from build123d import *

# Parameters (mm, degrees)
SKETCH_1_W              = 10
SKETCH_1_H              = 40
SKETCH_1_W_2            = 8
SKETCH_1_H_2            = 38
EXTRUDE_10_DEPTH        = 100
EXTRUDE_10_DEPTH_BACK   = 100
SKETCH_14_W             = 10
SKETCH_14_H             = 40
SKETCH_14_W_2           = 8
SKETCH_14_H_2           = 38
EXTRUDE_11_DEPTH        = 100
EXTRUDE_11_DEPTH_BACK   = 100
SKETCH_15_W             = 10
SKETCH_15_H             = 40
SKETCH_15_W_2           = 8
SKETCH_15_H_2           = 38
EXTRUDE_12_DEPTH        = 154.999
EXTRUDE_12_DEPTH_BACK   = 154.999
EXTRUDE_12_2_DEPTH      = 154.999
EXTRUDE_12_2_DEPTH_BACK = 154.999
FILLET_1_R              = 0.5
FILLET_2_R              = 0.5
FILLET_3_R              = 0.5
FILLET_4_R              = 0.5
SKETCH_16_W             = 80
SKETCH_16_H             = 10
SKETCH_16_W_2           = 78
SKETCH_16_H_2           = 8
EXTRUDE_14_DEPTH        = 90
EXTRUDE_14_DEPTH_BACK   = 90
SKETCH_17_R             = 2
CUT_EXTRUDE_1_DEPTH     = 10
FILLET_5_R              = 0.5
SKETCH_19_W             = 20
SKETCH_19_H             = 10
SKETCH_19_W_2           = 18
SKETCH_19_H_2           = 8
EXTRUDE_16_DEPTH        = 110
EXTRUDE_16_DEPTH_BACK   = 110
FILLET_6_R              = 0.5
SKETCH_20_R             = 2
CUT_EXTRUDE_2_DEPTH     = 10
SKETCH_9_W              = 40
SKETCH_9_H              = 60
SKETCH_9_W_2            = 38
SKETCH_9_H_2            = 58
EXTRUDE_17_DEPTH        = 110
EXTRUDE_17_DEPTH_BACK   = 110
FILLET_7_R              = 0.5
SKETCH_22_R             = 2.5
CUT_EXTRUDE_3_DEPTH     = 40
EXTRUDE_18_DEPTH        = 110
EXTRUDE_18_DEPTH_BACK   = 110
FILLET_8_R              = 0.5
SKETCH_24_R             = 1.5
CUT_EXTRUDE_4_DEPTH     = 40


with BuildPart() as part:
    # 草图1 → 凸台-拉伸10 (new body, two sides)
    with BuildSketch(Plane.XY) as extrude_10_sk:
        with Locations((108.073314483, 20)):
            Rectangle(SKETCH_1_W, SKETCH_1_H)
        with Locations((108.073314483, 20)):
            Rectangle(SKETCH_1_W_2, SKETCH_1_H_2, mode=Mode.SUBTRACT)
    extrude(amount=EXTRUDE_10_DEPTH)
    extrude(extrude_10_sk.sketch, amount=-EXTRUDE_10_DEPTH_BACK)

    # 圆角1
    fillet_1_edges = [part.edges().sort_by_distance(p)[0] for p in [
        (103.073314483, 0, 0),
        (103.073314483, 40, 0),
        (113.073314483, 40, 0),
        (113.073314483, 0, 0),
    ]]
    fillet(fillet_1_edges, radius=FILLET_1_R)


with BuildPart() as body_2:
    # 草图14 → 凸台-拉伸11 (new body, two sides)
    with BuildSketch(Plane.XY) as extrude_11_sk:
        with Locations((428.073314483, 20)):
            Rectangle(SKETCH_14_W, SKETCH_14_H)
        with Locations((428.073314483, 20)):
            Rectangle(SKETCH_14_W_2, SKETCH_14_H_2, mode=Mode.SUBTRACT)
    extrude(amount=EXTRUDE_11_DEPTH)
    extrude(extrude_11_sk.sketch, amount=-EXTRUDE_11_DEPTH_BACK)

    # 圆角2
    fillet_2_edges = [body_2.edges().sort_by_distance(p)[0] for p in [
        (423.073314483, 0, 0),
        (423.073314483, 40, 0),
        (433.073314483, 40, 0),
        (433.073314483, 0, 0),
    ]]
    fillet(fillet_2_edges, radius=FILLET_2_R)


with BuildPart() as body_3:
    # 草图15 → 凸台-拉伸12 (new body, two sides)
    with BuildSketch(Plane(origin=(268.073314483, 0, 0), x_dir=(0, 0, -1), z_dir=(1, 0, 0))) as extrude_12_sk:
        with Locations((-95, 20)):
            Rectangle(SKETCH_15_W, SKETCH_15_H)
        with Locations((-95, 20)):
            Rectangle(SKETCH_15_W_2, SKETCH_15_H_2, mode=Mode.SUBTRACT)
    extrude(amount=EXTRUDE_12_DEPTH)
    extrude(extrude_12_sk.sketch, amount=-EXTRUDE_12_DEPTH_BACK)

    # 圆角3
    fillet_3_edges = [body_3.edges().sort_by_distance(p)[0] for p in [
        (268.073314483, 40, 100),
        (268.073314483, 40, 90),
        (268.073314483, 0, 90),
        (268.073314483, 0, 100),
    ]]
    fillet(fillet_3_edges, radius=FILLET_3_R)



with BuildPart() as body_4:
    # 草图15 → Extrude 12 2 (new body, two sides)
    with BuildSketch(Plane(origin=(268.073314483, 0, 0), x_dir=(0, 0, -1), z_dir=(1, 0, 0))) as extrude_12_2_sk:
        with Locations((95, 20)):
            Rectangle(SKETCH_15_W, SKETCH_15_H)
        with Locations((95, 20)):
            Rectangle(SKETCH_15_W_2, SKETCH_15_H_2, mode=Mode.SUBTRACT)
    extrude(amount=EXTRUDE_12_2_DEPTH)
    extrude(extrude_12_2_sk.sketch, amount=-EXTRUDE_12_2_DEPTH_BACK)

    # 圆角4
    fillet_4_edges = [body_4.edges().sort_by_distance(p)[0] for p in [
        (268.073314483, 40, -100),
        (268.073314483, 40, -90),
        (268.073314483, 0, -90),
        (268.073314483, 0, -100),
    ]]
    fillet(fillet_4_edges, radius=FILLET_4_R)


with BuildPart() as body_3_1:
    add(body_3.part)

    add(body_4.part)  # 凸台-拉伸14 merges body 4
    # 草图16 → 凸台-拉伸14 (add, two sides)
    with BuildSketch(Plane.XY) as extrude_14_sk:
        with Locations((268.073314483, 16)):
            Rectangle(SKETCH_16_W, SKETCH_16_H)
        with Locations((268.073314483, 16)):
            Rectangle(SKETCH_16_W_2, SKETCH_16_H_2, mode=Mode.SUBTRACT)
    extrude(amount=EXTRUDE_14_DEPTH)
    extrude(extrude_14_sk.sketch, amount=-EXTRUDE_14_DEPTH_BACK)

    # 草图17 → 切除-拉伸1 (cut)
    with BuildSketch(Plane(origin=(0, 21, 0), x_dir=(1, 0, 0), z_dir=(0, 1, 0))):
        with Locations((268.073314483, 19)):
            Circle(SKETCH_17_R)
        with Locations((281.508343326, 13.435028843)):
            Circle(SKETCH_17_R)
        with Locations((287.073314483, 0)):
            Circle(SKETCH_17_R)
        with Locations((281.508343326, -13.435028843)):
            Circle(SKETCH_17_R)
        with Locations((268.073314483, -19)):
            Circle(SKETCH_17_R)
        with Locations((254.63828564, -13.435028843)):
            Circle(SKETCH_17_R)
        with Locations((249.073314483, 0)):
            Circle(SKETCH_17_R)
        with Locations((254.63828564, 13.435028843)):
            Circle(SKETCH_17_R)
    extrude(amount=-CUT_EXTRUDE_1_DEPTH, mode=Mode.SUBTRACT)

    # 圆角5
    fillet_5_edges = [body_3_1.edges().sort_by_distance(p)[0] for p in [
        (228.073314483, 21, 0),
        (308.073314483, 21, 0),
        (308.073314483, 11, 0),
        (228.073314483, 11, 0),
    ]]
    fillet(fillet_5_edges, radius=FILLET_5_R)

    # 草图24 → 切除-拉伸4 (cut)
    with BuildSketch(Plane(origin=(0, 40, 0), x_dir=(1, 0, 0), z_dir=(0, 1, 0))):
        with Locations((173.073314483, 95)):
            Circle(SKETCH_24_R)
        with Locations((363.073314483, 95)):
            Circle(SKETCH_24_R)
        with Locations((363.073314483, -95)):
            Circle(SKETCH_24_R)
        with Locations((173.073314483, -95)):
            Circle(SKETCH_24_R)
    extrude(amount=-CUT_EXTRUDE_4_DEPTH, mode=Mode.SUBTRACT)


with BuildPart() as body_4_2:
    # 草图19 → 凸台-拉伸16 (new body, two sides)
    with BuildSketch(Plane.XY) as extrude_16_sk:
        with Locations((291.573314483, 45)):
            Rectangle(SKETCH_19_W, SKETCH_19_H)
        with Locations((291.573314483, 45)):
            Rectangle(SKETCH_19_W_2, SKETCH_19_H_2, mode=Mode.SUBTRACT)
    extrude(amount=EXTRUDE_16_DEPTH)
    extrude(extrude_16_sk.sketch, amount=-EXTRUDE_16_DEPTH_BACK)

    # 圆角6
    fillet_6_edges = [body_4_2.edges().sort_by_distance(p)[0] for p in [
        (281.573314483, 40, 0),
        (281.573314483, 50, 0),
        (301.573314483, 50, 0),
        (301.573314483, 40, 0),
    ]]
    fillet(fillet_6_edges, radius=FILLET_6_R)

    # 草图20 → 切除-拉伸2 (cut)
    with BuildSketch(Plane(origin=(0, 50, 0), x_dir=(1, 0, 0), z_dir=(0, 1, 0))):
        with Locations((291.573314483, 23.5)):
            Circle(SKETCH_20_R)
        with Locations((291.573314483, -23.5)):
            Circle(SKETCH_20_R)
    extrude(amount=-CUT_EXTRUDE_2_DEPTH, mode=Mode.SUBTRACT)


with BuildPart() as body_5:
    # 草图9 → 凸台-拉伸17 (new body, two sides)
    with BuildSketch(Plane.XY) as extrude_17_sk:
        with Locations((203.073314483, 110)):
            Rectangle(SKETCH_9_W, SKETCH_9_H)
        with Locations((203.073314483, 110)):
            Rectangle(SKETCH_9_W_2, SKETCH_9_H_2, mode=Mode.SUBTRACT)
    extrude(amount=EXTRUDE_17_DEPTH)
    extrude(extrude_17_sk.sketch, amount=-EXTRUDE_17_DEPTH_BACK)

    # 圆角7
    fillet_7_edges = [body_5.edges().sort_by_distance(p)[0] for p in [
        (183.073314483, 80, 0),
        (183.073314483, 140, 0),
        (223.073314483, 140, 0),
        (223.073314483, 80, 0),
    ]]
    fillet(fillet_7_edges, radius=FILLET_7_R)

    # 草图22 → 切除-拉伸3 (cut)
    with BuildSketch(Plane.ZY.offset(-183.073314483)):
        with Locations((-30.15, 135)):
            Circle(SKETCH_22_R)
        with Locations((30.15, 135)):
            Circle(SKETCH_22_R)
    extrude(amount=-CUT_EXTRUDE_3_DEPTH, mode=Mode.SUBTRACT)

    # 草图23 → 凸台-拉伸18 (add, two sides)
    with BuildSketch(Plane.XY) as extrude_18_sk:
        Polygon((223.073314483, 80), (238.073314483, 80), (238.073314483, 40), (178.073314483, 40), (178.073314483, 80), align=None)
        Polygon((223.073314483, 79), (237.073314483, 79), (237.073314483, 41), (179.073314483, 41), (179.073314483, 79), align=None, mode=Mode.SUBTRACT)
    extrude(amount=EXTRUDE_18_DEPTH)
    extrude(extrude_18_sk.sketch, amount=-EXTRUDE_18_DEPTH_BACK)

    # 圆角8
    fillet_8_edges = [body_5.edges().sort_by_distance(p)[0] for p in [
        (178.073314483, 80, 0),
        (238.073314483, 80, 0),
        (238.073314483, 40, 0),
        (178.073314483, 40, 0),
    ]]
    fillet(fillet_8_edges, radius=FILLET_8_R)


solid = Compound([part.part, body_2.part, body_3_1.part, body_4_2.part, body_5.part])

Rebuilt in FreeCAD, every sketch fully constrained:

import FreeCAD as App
import Part
import Sketcher

V = App.Vector


def edges_at(feature, points):
    """Names of the edges that pass closest to the given points."""
    edges = feature.Shape.Edges
    near = lambda p: min(range(len(edges)), key=lambda i: edges[i].distToShape(Part.Vertex(*p))[0])
    return sorted({f"Edge{near(p) + 1}" for p in points})

doc = App.newDocument("Part")
params = doc.addObject("Spreadsheet::Sheet", "Params")
for row, (alias, value) in enumerate([
    ("sketch1_width", "10 mm"),
    ("sketch1_width2", "8 mm"),
    ("sketch1_height", "40 mm"),
    ("sketch1_height2", "38 mm"),
    ("pad1_length", "100 mm"),
    ("pad1_length2", "100 mm"),
    ("fillet_radius", "0.5 mm"),
    ("sketch2_width", "10 mm"),
    ("sketch2_width2", "8 mm"),
    ("sketch2_height", "40 mm"),
    ("sketch2_height2", "38 mm"),
    ("pad2_length", "100 mm"),
    ("pad2_length2", "100 mm"),
    ("fillet2_radius", "0.5 mm"),
    ("sketch3_width", "40 mm"),
    ("sketch3_width2", "38 mm"),
    ("sketch3_height", "10 mm"),
    ("sketch3_height2", "8 mm"),
    ("pad3_length", "154.999 mm"),
    ("pad3_length2", "154.999 mm"),
    ("fillet3_radius", "0.5 mm"),
    ("sketch4_width", "40 mm"),
    ("sketch4_width2", "38 mm"),
    ("sketch4_height", "10 mm"),
    ("sketch4_height2", "8 mm"),
    ("pad4_length", "154.999 mm"),
    ("pad4_length2", "154.999 mm"),
    ("fillet4_radius", "0.5 mm"),
    ("sketch5_width", "80 mm"),
    ("sketch5_width2", "78 mm"),
    ("sketch5_height", "10 mm"),
    ("sketch5_height2", "8 mm"),
    ("pad5_length", "90 mm"),
    ("pad5_length2", "90 mm"),
    ("sketch6_diameter", "4 mm"),
    ("pocket1_length", "10 mm"),
    ("fillet5_radius", "0.5 mm"),
    ("sketch7_diameter", "3 mm"),
    ("pocket2_length", "40 mm"),
    ("sketch8_width", "20 mm"),
    ("sketch8_width2", "18 mm"),
    ("sketch8_height", "10 mm"),
    ("sketch8_height2", "8 mm"),
    ("pad6_length", "110 mm"),
    ("pad6_length2", "110 mm"),
    ("fillet6_radius", "0.5 mm"),
    ("sketch9_diameter", "4 mm"),
    ("pocket3_length", "10 mm"),
    ("sketch10_width", "40 mm"),
    ("sketch10_width2", "38 mm"),
    ("sketch10_height", "60 mm"),
    ("sketch10_height2", "58 mm"),
    ("pad7_length", "110 mm"),
    ("pad7_length2", "110 mm"),
    ("fillet7_radius", "0.5 mm"),
    ("sketch11_diameter", "5 mm"),
    ("pocket4_length", "40 mm"),
    ("sketch12_width", "60 mm"),
    ("sketch12_width2", "58 mm"),
    ("sketch12_height", "40 mm"),
    ("sketch12_height2", "38 mm"),
    ("pad8_length", "110 mm"),
    ("pad8_length2", "110 mm"),
    ("fillet8_radius", "0.5 mm"),
], start=1):
    params.set(f"A{row}", alias)
    params.set(f"B{row}", "=" + value)
    params.setAlias(f"B{row}", alias)

body = doc.addObject("PartDesign::Body", "Body")

# Sketch on XY plane
sketch1 = body.newObject("Sketcher::SketchObject", "Sketch")
sketch1.AttachmentSupport = (doc.getObject("XY_Plane"), [""])
sketch1.MapMode = "FlatFace"
sketch1.addGeometry(Part.LineSegment(V(103.073314, 40, 0), V(103.073314, 0, 0)), False)
sketch1.addGeometry(Part.LineSegment(V(103.073314, 0, 0), V(113.073314, 0, 0)), False)
sketch1.addGeometry(Part.LineSegment(V(113.073314, 0, 0), V(113.073314, 40, 0)), False)
sketch1.addGeometry(Part.LineSegment(V(113.073314, 40, 0), V(103.073314, 40, 0)), False)
sketch1.addGeometry(Part.LineSegment(V(112.073314, 1, 0), V(104.073314, 1, 0)), False)
sketch1.addGeometry(Part.LineSegment(V(104.073314, 1, 0), V(104.073314, 39, 0)), False)
sketch1.addGeometry(Part.LineSegment(V(104.073314, 39, 0), V(112.073314, 39, 0)), False)
sketch1.addGeometry(Part.LineSegment(V(112.073314, 39, 0), V(112.073314, 1, 0)), False)
sketch1.addConstraint(Sketcher.Constraint("Coincident", 0, 2, 1, 1))
sketch1.addConstraint(Sketcher.Constraint("Coincident", 1, 2, 2, 1))
sketch1.addConstraint(Sketcher.Constraint("Coincident", 2, 2, 3, 1))
sketch1.addConstraint(Sketcher.Constraint("Coincident", 3, 2, 0, 1))
sketch1.addConstraint(Sketcher.Constraint("Coincident", 4, 2, 5, 1))
sketch1.addConstraint(Sketcher.Constraint("Coincident", 5, 2, 6, 1))
sketch1.addConstraint(Sketcher.Constraint("Coincident", 6, 2, 7, 1))
sketch1.addConstraint(Sketcher.Constraint("Coincident", 7, 2, 4, 1))
sketch1.addConstraint(Sketcher.Constraint("Vertical", 0))
sketch1.addConstraint(Sketcher.Constraint("Horizontal", 1))
sketch1.addConstraint(Sketcher.Constraint("Vertical", 2))
sketch1.addConstraint(Sketcher.Constraint("Horizontal", 3))
sketch1.addConstraint(Sketcher.Constraint("Horizontal", 4))
sketch1.addConstraint(Sketcher.Constraint("Vertical", 5))
sketch1.addConstraint(Sketcher.Constraint("Horizontal", 6))
sketch1.addConstraint(Sketcher.Constraint("Vertical", 7))
sketch1.addConstraint(Sketcher.Constraint("PointOnObject", 0, 2, -1))
sketch1.addConstraint(Sketcher.Constraint("DistanceX", 1, 1, 1, 2, 10.0))
sketch1.addConstraint(Sketcher.Constraint("DistanceX", 4, 2, 4, 1, 8.0))
sketch1.addConstraint(Sketcher.Constraint("DistanceY", 0, 2, 0, 1, 40.0))
sketch1.addConstraint(Sketcher.Constraint("DistanceY", 5, 1, 5, 2, 38.0))
sketch1.addConstraint(Sketcher.Constraint("DistanceY", -1, 1, 4, 2, 1.0))
sketch1.addConstraint(Sketcher.Constraint("DistanceX", 0, 2, 4, 2, 1.0))
sketch1.addConstraint(Sketcher.Constraint("DistanceX", -1, 1, 0, 2, 103.073314))
sketch1.setExpression("Constraints[17]", "Params.sketch1_width")
sketch1.setExpression("Constraints[18]", "Params.sketch1_width2")
sketch1.setExpression("Constraints[19]", "Params.sketch1_height")
sketch1.setExpression("Constraints[20]", "Params.sketch1_height2")
pad1 = body.newObject("PartDesign::Pad", "Pad")
pad1.Profile = sketch1
pad1.Type = "TwoLengths"
pad1.setExpression("Length", "Params.pad1_length")
pad1.setExpression("Length2", "Params.pad1_length2")
doc.recompute()

fillet = body.newObject("PartDesign::Fillet", "Fillet")
fillet.Base = (pad1, edges_at(pad1, [
    (103.073, 0, 0),
    (103.073, 40, 0),
    (113.073, 40, 0),
    (113.073, 0, 0),
]))
fillet.setExpression("Radius", "Params.fillet_radius")
body2 = doc.addObject("PartDesign::Body", "Body001")

# Sketch on XY plane
sketch2 = body2.newObject("Sketcher::SketchObject", "Sketch001")
sketch2.AttachmentSupport = (doc.getObject("XY_Plane001"), [""])
sketch2.MapMode = "FlatFace"
sketch2.addGeometry(Part.LineSegment(V(423.073314, 40, 0), V(423.073314, 0, 0)), False)
sketch2.addGeometry(Part.LineSegment(V(423.073314, 0, 0), V(433.073314, 0, 0)), False)
sketch2.addGeometry(Part.LineSegment(V(433.073314, 0, 0), V(433.073314, 40, 0)), False)
sketch2.addGeometry(Part.LineSegment(V(433.073314, 40, 0), V(423.073314, 40, 0)), False)
sketch2.addGeometry(Part.LineSegment(V(432.073314, 1, 0), V(424.073314, 1, 0)), False)
sketch2.addGeometry(Part.LineSegment(V(424.073314, 1, 0), V(424.073314, 39, 0)), False)
sketch2.addGeometry(Part.LineSegment(V(424.073314, 39, 0), V(432.073314, 39, 0)), False)
sketch2.addGeometry(Part.LineSegment(V(432.073314, 39, 0), V(432.073314, 1, 0)), False)
sketch2.addConstraint(Sketcher.Constraint("Coincident", 0, 2, 1, 1))
sketch2.addConstraint(Sketcher.Constraint("Coincident", 1, 2, 2, 1))
sketch2.addConstraint(Sketcher.Constraint("Coincident", 2, 2, 3, 1))
sketch2.addConstraint(Sketcher.Constraint("Coincident", 3, 2, 0, 1))
sketch2.addConstraint(Sketcher.Constraint("Coincident", 4, 2, 5, 1))
sketch2.addConstraint(Sketcher.Constraint("Coincident", 5, 2, 6, 1))
sketch2.addConstraint(Sketcher.Constraint("Coincident", 6, 2, 7, 1))
sketch2.addConstraint(Sketcher.Constraint("Coincident", 7, 2, 4, 1))
sketch2.addConstraint(Sketcher.Constraint("Vertical", 0))
sketch2.addConstraint(Sketcher.Constraint("Horizontal", 1))
sketch2.addConstraint(Sketcher.Constraint("Vertical", 2))
sketch2.addConstraint(Sketcher.Constraint("Horizontal", 3))
sketch2.addConstraint(Sketcher.Constraint("Horizontal", 4))
sketch2.addConstraint(Sketcher.Constraint("Vertical", 5))
sketch2.addConstraint(Sketcher.Constraint("Horizontal", 6))
sketch2.addConstraint(Sketcher.Constraint("Vertical", 7))
sketch2.addConstraint(Sketcher.Constraint("PointOnObject", 0, 2, -1))
sketch2.addConstraint(Sketcher.Constraint("DistanceX", 1, 1, 1, 2, 10.0))
sketch2.addConstraint(Sketcher.Constraint("DistanceX", 4, 2, 4, 1, 8.0))
sketch2.addConstraint(Sketcher.Constraint("DistanceY", 0, 2, 0, 1, 40.0))
sketch2.addConstraint(Sketcher.Constraint("DistanceY", 5, 1, 5, 2, 38.0))
sketch2.addConstraint(Sketcher.Constraint("DistanceY", -1, 1, 4, 2, 1.0))
sketch2.addConstraint(Sketcher.Constraint("DistanceX", 0, 2, 4, 2, 1.0))
sketch2.addConstraint(Sketcher.Constraint("DistanceX", -1, 1, 0, 2, 423.073314))
sketch2.setExpression("Constraints[17]", "Params.sketch2_width")
sketch2.setExpression("Constraints[18]", "Params.sketch2_width2")
sketch2.setExpression("Constraints[19]", "Params.sketch2_height")
sketch2.setExpression("Constraints[20]", "Params.sketch2_height2")
pad2 = body2.newObject("PartDesign::Pad", "Pad001")
pad2.Profile = sketch2
pad2.Type = "TwoLengths"
pad2.setExpression("Length", "Params.pad2_length")
pad2.setExpression("Length2", "Params.pad2_length2")
doc.recompute()

fillet2 = body2.newObject("PartDesign::Fillet", "Fillet001")
fillet2.Base = (pad2, edges_at(pad2, [
    (423.073, 0, 0),
    (423.073, 40, 0),
    (433.073, 40, 0),
    (433.073, 0, 0),
]))
fillet2.setExpression("Radius", "Params.fillet2_radius")
body3 = doc.addObject("PartDesign::Body", "Body002")

# Sketch on YZ plane
sketch3 = body3.newObject("Sketcher::SketchObject", "Sketch002")
sketch3.AttachmentSupport = (doc.getObject("YZ_Plane002"), [""])
sketch3.MapMode = "FlatFace"
sketch3.AttachmentOffset = App.Placement(V(0, 0, 268.073314), App.Rotation())
sketch3.addGeometry(Part.LineSegment(V(40, 100, 0), V(0, 100, 0)), False)
sketch3.addGeometry(Part.LineSegment(V(0, 100, 0), V(0, 90, 0)), False)
sketch3.addGeometry(Part.LineSegment(V(0, 90, 0), V(40, 90, 0)), False)
sketch3.addGeometry(Part.LineSegment(V(40, 90, 0), V(40, 100, 0)), False)
sketch3.addGeometry(Part.LineSegment(V(1, 91, 0), V(1, 99, 0)), False)
sketch3.addGeometry(Part.LineSegment(V(1, 99, 0), V(39, 99, 0)), False)
sketch3.addGeometry(Part.LineSegment(V(39, 99, 0), V(39, 91, 0)), False)
sketch3.addGeometry(Part.LineSegment(V(39, 91, 0), V(1, 91, 0)), False)
sketch3.addConstraint(Sketcher.Constraint("Coincident", 0, 2, 1, 1))
sketch3.addConstraint(Sketcher.Constraint("Coincident", 1, 2, 2, 1))
sketch3.addConstraint(Sketcher.Constraint("Coincident", 2, 2, 3, 1))
sketch3.addConstraint(Sketcher.Constraint("Coincident", 3, 2, 0, 1))
sketch3.addConstraint(Sketcher.Constraint("Coincident", 4, 2, 5, 1))
sketch3.addConstraint(Sketcher.Constraint("Coincident", 5, 2, 6, 1))
sketch3.addConstraint(Sketcher.Constraint("Coincident", 6, 2, 7, 1))
sketch3.addConstraint(Sketcher.Constraint("Coincident", 7, 2, 4, 1))
sketch3.addConstraint(Sketcher.Constraint("Horizontal", 0))
sketch3.addConstraint(Sketcher.Constraint("Vertical", 1))
sketch3.addConstraint(Sketcher.Constraint("Horizontal", 2))
sketch3.addConstraint(Sketcher.Constraint("Vertical", 3))
sketch3.addConstraint(Sketcher.Constraint("Vertical", 4))
sketch3.addConstraint(Sketcher.Constraint("Horizontal", 5))
sketch3.addConstraint(Sketcher.Constraint("Vertical", 6))
sketch3.addConstraint(Sketcher.Constraint("Horizontal", 7))
sketch3.addConstraint(Sketcher.Constraint("PointOnObject", 0, 2, -2))
sketch3.addConstraint(Sketcher.Constraint("DistanceX", 0, 2, 0, 1, 40.0))
sketch3.addConstraint(Sketcher.Constraint("DistanceX", 5, 1, 5, 2, 38.0))
sketch3.addConstraint(Sketcher.Constraint("DistanceY", 1, 2, 1, 1, 10.0))
sketch3.addConstraint(Sketcher.Constraint("DistanceY", 4, 1, 4, 2, 8.0))
sketch3.addConstraint(Sketcher.Constraint("DistanceY", -1, 1, 0, 2, 100.0))
sketch3.addConstraint(Sketcher.Constraint("DistanceX", -1, 1, 4, 2, 1.0))
sketch3.addConstraint(Sketcher.Constraint("DistanceY", -1, 1, 4, 2, 99.0))
sketch3.setExpression("Constraints[17]", "Params.sketch3_width")
sketch3.setExpression("Constraints[18]", "Params.sketch3_width2")
sketch3.setExpression("Constraints[19]", "Params.sketch3_height")
sketch3.setExpression("Constraints[20]", "Params.sketch3_height2")
pad3 = body3.newObject("PartDesign::Pad", "Pad002")
pad3.Profile = sketch3
pad3.Type = "TwoLengths"
pad3.setExpression("Length", "Params.pad3_length")
pad3.setExpression("Length2", "Params.pad3_length2")
doc.recompute()

fillet3 = body3.newObject("PartDesign::Fillet", "Fillet002")
fillet3.Base = (pad3, edges_at(pad3, [
    (268.073, 40, 100),
    (268.073, 40, 90),
    (268.073, 0, 90),
    (268.073, 0, 100),
]))
fillet3.setExpression("Radius", "Params.fillet3_radius")
body4 = doc.addObject("PartDesign::Body", "Body003")

# Sketch on YZ plane
sketch4 = body4.newObject("Sketcher::SketchObject", "Sketch003")
sketch4.AttachmentSupport = (doc.getObject("YZ_Plane003"), [""])
sketch4.MapMode = "FlatFace"
sketch4.AttachmentOffset = App.Placement(V(0, 0, 268.073314), App.Rotation())
sketch4.addGeometry(Part.LineSegment(V(40, -90, 0), V(0, -90, 0)), False)
sketch4.addGeometry(Part.LineSegment(V(0, -90, 0), V(0, -100, 0)), False)
sketch4.addGeometry(Part.LineSegment(V(0, -100, 0), V(40, -100, 0)), False)
sketch4.addGeometry(Part.LineSegment(V(40, -100, 0), V(40, -90, 0)), False)
sketch4.addGeometry(Part.LineSegment(V(1, -99, 0), V(1, -91, 0)), False)
sketch4.addGeometry(Part.LineSegment(V(1, -91, 0), V(39, -91, 0)), False)
sketch4.addGeometry(Part.LineSegment(V(39, -91, 0), V(39, -99, 0)), False)
sketch4.addGeometry(Part.LineSegment(V(39, -99, 0), V(1, -99, 0)), False)
sketch4.addConstraint(Sketcher.Constraint("Coincident", 0, 2, 1, 1))
sketch4.addConstraint(Sketcher.Constraint("Coincident", 1, 2, 2, 1))
sketch4.addConstraint(Sketcher.Constraint("Coincident", 2, 2, 3, 1))
sketch4.addConstraint(Sketcher.Constraint("Coincident", 3, 2, 0, 1))
sketch4.addConstraint(Sketcher.Constraint("Coincident", 4, 2, 5, 1))
sketch4.addConstraint(Sketcher.Constraint("Coincident", 5, 2, 6, 1))
sketch4.addConstraint(Sketcher.Constraint("Coincident", 6, 2, 7, 1))
sketch4.addConstraint(Sketcher.Constraint("Coincident", 7, 2, 4, 1))
sketch4.addConstraint(Sketcher.Constraint("Horizontal", 0))
sketch4.addConstraint(Sketcher.Constraint("Vertical", 1))
sketch4.addConstraint(Sketcher.Constraint("Horizontal", 2))
sketch4.addConstraint(Sketcher.Constraint("Vertical", 3))
sketch4.addConstraint(Sketcher.Constraint("Vertical", 4))
sketch4.addConstraint(Sketcher.Constraint("Horizontal", 5))
sketch4.addConstraint(Sketcher.Constraint("Vertical", 6))
sketch4.addConstraint(Sketcher.Constraint("Horizontal", 7))
sketch4.addConstraint(Sketcher.Constraint("PointOnObject", 0, 2, -2))
sketch4.addConstraint(Sketcher.Constraint("DistanceX", 0, 2, 0, 1, 40.0))
sketch4.addConstraint(Sketcher.Constraint("DistanceX", 5, 1, 5, 2, 38.0))
sketch4.addConstraint(Sketcher.Constraint("DistanceY", 1, 2, 1, 1, 10.0))
sketch4.addConstraint(Sketcher.Constraint("DistanceY", 4, 1, 4, 2, 8.0))
sketch4.addConstraint(Sketcher.Constraint("DistanceY", 0, 2, -1, 1, 90.0))
sketch4.addConstraint(Sketcher.Constraint("DistanceX", -1, 1, 4, 2, 1.0))
sketch4.addConstraint(Sketcher.Constraint("DistanceY", 4, 2, -1, 1, 91.0))
sketch4.setExpression("Constraints[17]", "Params.sketch4_width")
sketch4.setExpression("Constraints[18]", "Params.sketch4_width2")
sketch4.setExpression("Constraints[19]", "Params.sketch4_height")
sketch4.setExpression("Constraints[20]", "Params.sketch4_height2")
pad4 = body4.newObject("PartDesign::Pad", "Pad003")
pad4.Profile = sketch4
pad4.Type = "TwoLengths"
pad4.setExpression("Length", "Params.pad4_length")
pad4.setExpression("Length2", "Params.pad4_length2")
doc.recompute()

fillet4 = body4.newObject("PartDesign::Fillet", "Fillet003")
fillet4.Base = (pad4, edges_at(pad4, [
    (268.073, 40, -100),
    (268.073, 40, -90),
    (268.073, 0, -90),
    (268.073, 0, -100),
]))
fillet4.setExpression("Radius", "Params.fillet4_radius")
body3.AllowCompound = True
doc.recompute()

boolean = body3.newObject("PartDesign::Boolean", "Boolean")
boolean.Type = "Fuse"
boolean.addObjects([body4])

# Sketch on XY plane
sketch5 = body3.newObject("Sketcher::SketchObject", "Sketch004")
sketch5.AttachmentSupport = (doc.getObject("XY_Plane002"), [""])
sketch5.MapMode = "FlatFace"
sketch5.addGeometry(Part.LineSegment(V(228.073314, 21, 0), V(228.073314, 11, 0)), False)
sketch5.addGeometry(Part.LineSegment(V(228.073314, 11, 0), V(308.073314, 11, 0)), False)
sketch5.addGeometry(Part.LineSegment(V(308.073314, 11, 0), V(308.073314, 21, 0)), False)
sketch5.addGeometry(Part.LineSegment(V(308.073314, 21, 0), V(228.073314, 21, 0)), False)
sketch5.addGeometry(Part.LineSegment(V(307.073314, 12, 0), V(229.073314, 12, 0)), False)
sketch5.addGeometry(Part.LineSegment(V(229.073314, 12, 0), V(229.073314, 20, 0)), False)
sketch5.addGeometry(Part.LineSegment(V(229.073314, 20, 0), V(307.073314, 20, 0)), False)
sketch5.addGeometry(Part.LineSegment(V(307.073314, 20, 0), V(307.073314, 12, 0)), False)
sketch5.addConstraint(Sketcher.Constraint("Coincident", 0, 2, 1, 1))
sketch5.addConstraint(Sketcher.Constraint("Coincident", 1, 2, 2, 1))
sketch5.addConstraint(Sketcher.Constraint("Coincident", 2, 2, 3, 1))
sketch5.addConstraint(Sketcher.Constraint("Coincident", 3, 2, 0, 1))
sketch5.addConstraint(Sketcher.Constraint("Coincident", 4, 2, 5, 1))
sketch5.addConstraint(Sketcher.Constraint("Coincident", 5, 2, 6, 1))
sketch5.addConstraint(Sketcher.Constraint("Coincident", 6, 2, 7, 1))
sketch5.addConstraint(Sketcher.Constraint("Coincident", 7, 2, 4, 1))
sketch5.addConstraint(Sketcher.Constraint("Vertical", 0))
sketch5.addConstraint(Sketcher.Constraint("Horizontal", 1))
sketch5.addConstraint(Sketcher.Constraint("Vertical", 2))
sketch5.addConstraint(Sketcher.Constraint("Horizontal", 3))
sketch5.addConstraint(Sketcher.Constraint("Horizontal", 4))
sketch5.addConstraint(Sketcher.Constraint("Vertical", 5))
sketch5.addConstraint(Sketcher.Constraint("Horizontal", 6))
sketch5.addConstraint(Sketcher.Constraint("Vertical", 7))
sketch5.addConstraint(Sketcher.Constraint("DistanceX", 1, 1, 1, 2, 80.0))
sketch5.addConstraint(Sketcher.Constraint("DistanceX", 4, 2, 4, 1, 78.0))
sketch5.addConstraint(Sketcher.Constraint("DistanceY", 0, 2, 0, 1, 10.0))
sketch5.addConstraint(Sketcher.Constraint("DistanceY", 5, 1, 5, 2, 8.0))
sketch5.addConstraint(Sketcher.Constraint("DistanceY", -1, 1, 0, 2, 11.0))
sketch5.addConstraint(Sketcher.Constraint("DistanceY", -1, 1, 4, 2, 12.0))
sketch5.addConstraint(Sketcher.Constraint("DistanceX", 0, 2, 4, 2, 1.0))
sketch5.addConstraint(Sketcher.Constraint("DistanceX", -1, 1, 0, 2, 228.073314))
sketch5.setExpression("Constraints[16]", "Params.sketch5_width")
sketch5.setExpression("Constraints[17]", "Params.sketch5_width2")
sketch5.setExpression("Constraints[18]", "Params.sketch5_height")
sketch5.setExpression("Constraints[19]", "Params.sketch5_height2")
pad5 = body3.newObject("PartDesign::Pad", "Pad004")
pad5.Profile = sketch5
pad5.Type = "TwoLengths"
pad5.setExpression("Length", "Params.pad5_length")
pad5.setExpression("Length2", "Params.pad5_length2")

# Sketch on XZ plane
sketch6 = body3.newObject("Sketcher::SketchObject", "Sketch005")
sketch6.AttachmentSupport = (doc.getObject("XZ_Plane002"), [""])
sketch6.MapMode = "FlatFace"
sketch6.AttachmentOffset = App.Placement(V(0, 0, -21), App.Rotation())
sketch6.addGeometry(Part.Circle(V(268.073314, -19, 0), V(0, 0, 1), 2), False)
sketch6.addGeometry(Part.Circle(V(281.508343, -13.435029, 0), V(0, 0, 1), 2), False)
sketch6.addGeometry(Part.Circle(V(287.073314, 0, 0), V(0, 0, 1), 2), False)
sketch6.addGeometry(Part.Circle(V(281.508343, 13.435029, 0), V(0, 0, 1), 2), False)
sketch6.addGeometry(Part.Circle(V(268.073314, 19, 0), V(0, 0, 1), 2), False)
sketch6.addGeometry(Part.Circle(V(254.638286, 13.435029, 0), V(0, 0, 1), 2), False)
sketch6.addGeometry(Part.Circle(V(249.073314, 0, 0), V(0, 0, 1), 2), False)
sketch6.addGeometry(Part.Circle(V(254.638286, -13.435029, 0), V(0, 0, 1), 2), False)
sketch6.addConstraint(Sketcher.Constraint("Equal", 0, 1))
sketch6.addConstraint(Sketcher.Constraint("Equal", 1, 2))
sketch6.addConstraint(Sketcher.Constraint("Equal", 2, 3))
sketch6.addConstraint(Sketcher.Constraint("Equal", 3, 4))
sketch6.addConstraint(Sketcher.Constraint("Equal", 4, 5))
sketch6.addConstraint(Sketcher.Constraint("Equal", 5, 6))
sketch6.addConstraint(Sketcher.Constraint("Equal", 6, 7))
sketch6.addConstraint(Sketcher.Constraint("Symmetric", 1, 3, 3, 3, -1))
sketch6.addConstraint(Sketcher.Constraint("Symmetric", 0, 3, 4, 3, -1))
sketch6.addConstraint(Sketcher.Constraint("Symmetric", 5, 3, 7, 3, -1))
sketch6.addConstraint(Sketcher.Constraint("PointOnObject", 2, 3, -1))
sketch6.addConstraint(Sketcher.Constraint("PointOnObject", 6, 3, -1))
sketch6.addConstraint(Sketcher.Constraint("Horizontal", 3, 3, 5, 3))
sketch6.addConstraint(Sketcher.Constraint("Diameter", 0, 4.0))
sketch6.addConstraint(Sketcher.Constraint("DistanceY", 0, 3, -1, 1, 19.0))
sketch6.addConstraint(Sketcher.Constraint("DistanceX", 0, 3, 2, 3, 19.0))
sketch6.addConstraint(Sketcher.Constraint("DistanceX", 6, 3, 0, 3, 19.0))
sketch6.addConstraint(Sketcher.Constraint("DistanceY", 1, 3, -1, 1, 13.435029))
sketch6.addConstraint(Sketcher.Constraint("DistanceX", 0, 3, 1, 3, 13.435029))
sketch6.addConstraint(Sketcher.Constraint("DistanceX", 5, 3, 4, 3, 13.435029))
sketch6.addConstraint(Sketcher.Constraint("DistanceX", -1, 1, 0, 3, 268.073314))
sketch6.setExpression("Constraints[13]", "Params.sketch6_diameter")
pocket1 = body3.newObject("PartDesign::Pocket", "Pocket")
pocket1.Profile = sketch6
pocket1.setExpression("Length", "Params.pocket1_length")
pocket1.Reversed = True
doc.recompute()

fillet5 = body3.newObject("PartDesign::Fillet", "Fillet004")
fillet5.Base = (pocket1, edges_at(pocket1, [
    (228.073, 21, 0),
    (308.073, 21, 0),
    (308.073, 11, 0),
    (228.073, 11, 0),
]))
fillet5.setExpression("Radius", "Params.fillet5_radius")

# Sketch on XZ plane
sketch7 = body3.newObject("Sketcher::SketchObject", "Sketch006")
sketch7.AttachmentSupport = (doc.getObject("XZ_Plane002"), [""])
sketch7.MapMode = "FlatFace"
sketch7.AttachmentOffset = App.Placement(V(0, 0, -40), App.Rotation())
sketch7.addGeometry(Part.Circle(V(173.073314, -95, 0), V(0, 0, 1), 1.5), False)
sketch7.addGeometry(Part.Circle(V(363.073314, -95, 0), V(0, 0, 1), 1.5), False)
sketch7.addGeometry(Part.Circle(V(363.073314, 95, 0), V(0, 0, 1), 1.5), False)
sketch7.addGeometry(Part.Circle(V(173.073314, 95, 0), V(0, 0, 1), 1.5), False)
sketch7.addConstraint(Sketcher.Constraint("Equal", 0, 1))
sketch7.addConstraint(Sketcher.Constraint("Equal", 1, 2))
sketch7.addConstraint(Sketcher.Constraint("Equal", 2, 3))
sketch7.addConstraint(Sketcher.Constraint("Symmetric", 1, 3, 2, 3, -1))
sketch7.addConstraint(Sketcher.Constraint("Symmetric", 0, 3, 3, 3, -1))
sketch7.addConstraint(Sketcher.Constraint("Horizontal", 0, 3, 1, 3))
sketch7.addConstraint(Sketcher.Constraint("Diameter", 0, 3.0))
sketch7.addConstraint(Sketcher.Constraint("DistanceY", 0, 3, -1, 1, 95.0))
sketch7.addConstraint(Sketcher.Constraint("DistanceX", 0, 3, 1, 3, 190.0))
sketch7.addConstraint(Sketcher.Constraint("DistanceX", -1, 1, 0, 3, 173.073314))
sketch7.setExpression("Constraints[6]", "Params.sketch7_diameter")
pocket2 = body3.newObject("PartDesign::Pocket", "Pocket001")
pocket2.Profile = sketch7
pocket2.setExpression("Length", "Params.pocket2_length")
pocket2.Reversed = True
body5 = doc.addObject("PartDesign::Body", "Body004")

# Sketch on XY plane
sketch8 = body5.newObject("Sketcher::SketchObject", "Sketch007")
sketch8.AttachmentSupport = (doc.getObject("XY_Plane004"), [""])
sketch8.MapMode = "FlatFace"
sketch8.addGeometry(Part.LineSegment(V(281.573314, 50, 0), V(281.573314, 40, 0)), False)
sketch8.addGeometry(Part.LineSegment(V(281.573314, 40, 0), V(301.573314, 40, 0)), False)
sketch8.addGeometry(Part.LineSegment(V(301.573314, 40, 0), V(301.573314, 50, 0)), False)
sketch8.addGeometry(Part.LineSegment(V(301.573314, 50, 0), V(281.573314, 50, 0)), False)
sketch8.addGeometry(Part.LineSegment(V(300.573314, 41, 0), V(282.573314, 41, 0)), False)
sketch8.addGeometry(Part.LineSegment(V(282.573314, 41, 0), V(282.573314, 49, 0)), False)
sketch8.addGeometry(Part.LineSegment(V(282.573314, 49, 0), V(300.573314, 49, 0)), False)
sketch8.addGeometry(Part.LineSegment(V(300.573314, 49, 0), V(300.573314, 41, 0)), False)
sketch8.addConstraint(Sketcher.Constraint("Coincident", 0, 2, 1, 1))
sketch8.addConstraint(Sketcher.Constraint("Coincident", 1, 2, 2, 1))
sketch8.addConstraint(Sketcher.Constraint("Coincident", 2, 2, 3, 1))
sketch8.addConstraint(Sketcher.Constraint("Coincident", 3, 2, 0, 1))
sketch8.addConstraint(Sketcher.Constraint("Coincident", 4, 2, 5, 1))
sketch8.addConstraint(Sketcher.Constraint("Coincident", 5, 2, 6, 1))
sketch8.addConstraint(Sketcher.Constraint("Coincident", 6, 2, 7, 1))
sketch8.addConstraint(Sketcher.Constraint("Coincident", 7, 2, 4, 1))
sketch8.addConstraint(Sketcher.Constraint("Vertical", 0))
sketch8.addConstraint(Sketcher.Constraint("Horizontal", 1))
sketch8.addConstraint(Sketcher.Constraint("Vertical", 2))
sketch8.addConstraint(Sketcher.Constraint("Horizontal", 3))
sketch8.addConstraint(Sketcher.Constraint("Horizontal", 4))
sketch8.addConstraint(Sketcher.Constraint("Vertical", 5))
sketch8.addConstraint(Sketcher.Constraint("Horizontal", 6))
sketch8.addConstraint(Sketcher.Constraint("Vertical", 7))
sketch8.addConstraint(Sketcher.Constraint("DistanceX", 1, 1, 1, 2, 20.0))
sketch8.addConstraint(Sketcher.Constraint("DistanceX", 4, 2, 4, 1, 18.0))
sketch8.addConstraint(Sketcher.Constraint("DistanceY", 0, 2, 0, 1, 10.0))
sketch8.addConstraint(Sketcher.Constraint("DistanceY", 5, 1, 5, 2, 8.0))
sketch8.addConstraint(Sketcher.Constraint("DistanceY", -1, 1, 0, 2, 40.0))
sketch8.addConstraint(Sketcher.Constraint("DistanceY", -1, 1, 4, 2, 41.0))
sketch8.addConstraint(Sketcher.Constraint("DistanceX", 0, 2, 4, 2, 1.0))
sketch8.addConstraint(Sketcher.Constraint("DistanceX", -1, 1, 0, 2, 281.573314))
sketch8.setExpression("Constraints[16]", "Params.sketch8_width")
sketch8.setExpression("Constraints[17]", "Params.sketch8_width2")
sketch8.setExpression("Constraints[18]", "Params.sketch8_height")
sketch8.setExpression("Constraints[19]", "Params.sketch8_height2")
pad6 = body5.newObject("PartDesign::Pad", "Pad005")
pad6.Profile = sketch8
pad6.Type = "TwoLengths"
pad6.setExpression("Length", "Params.pad6_length")
pad6.setExpression("Length2", "Params.pad6_length2")
doc.recompute()

fillet6 = body5.newObject("PartDesign::Fillet", "Fillet005")
fillet6.Base = (pad6, edges_at(pad6, [
    (281.573, 40, 0),
    (281.573, 50, 0),
    (301.573, 50, 0),
    (301.573, 40, 0),
]))
fillet6.setExpression("Radius", "Params.fillet6_radius")

# Sketch on XZ plane
sketch9 = body5.newObject("Sketcher::SketchObject", "Sketch008")
sketch9.AttachmentSupport = (doc.getObject("XZ_Plane004"), [""])
sketch9.MapMode = "FlatFace"
sketch9.AttachmentOffset = App.Placement(V(0, 0, -50), App.Rotation())
sketch9.addGeometry(Part.Circle(V(291.573314, -23.5, 0), V(0, 0, 1), 2), False)
sketch9.addGeometry(Part.Circle(V(291.573314, 23.5, 0), V(0, 0, 1), 2), False)
sketch9.addConstraint(Sketcher.Constraint("Equal", 0, 1))
sketch9.addConstraint(Sketcher.Constraint("Symmetric", 0, 3, 1, 3, -1))
sketch9.addConstraint(Sketcher.Constraint("Diameter", 0, 4.0))
sketch9.addConstraint(Sketcher.Constraint("DistanceY", 0, 3, 1, 3, 47.0))
sketch9.addConstraint(Sketcher.Constraint("DistanceX", -1, 1, 0, 3, 291.573314))
sketch9.setExpression("Constraints[2]", "Params.sketch9_diameter")
pocket3 = body5.newObject("PartDesign::Pocket", "Pocket002")
pocket3.Profile = sketch9
pocket3.setExpression("Length", "Params.pocket3_length")
pocket3.Reversed = True
body6 = doc.addObject("PartDesign::Body", "Body005")

# Sketch on XY plane
sketch10 = body6.newObject("Sketcher::SketchObject", "Sketch009")
sketch10.AttachmentSupport = (doc.getObject("XY_Plane005"), [""])
sketch10.MapMode = "FlatFace"
sketch10.addGeometry(Part.LineSegment(V(183.073314, 140, 0), V(183.073314, 80, 0)), False)
sketch10.addGeometry(Part.LineSegment(V(183.073314, 80, 0), V(223.073314, 80, 0)), False)
sketch10.addGeometry(Part.LineSegment(V(223.073314, 80, 0), V(223.073314, 140, 0)), False)
sketch10.addGeometry(Part.LineSegment(V(223.073314, 140, 0), V(183.073314, 140, 0)), False)
sketch10.addGeometry(Part.LineSegment(V(222.073314, 81, 0), V(184.073314, 81, 0)), False)
sketch10.addGeometry(Part.LineSegment(V(184.073314, 81, 0), V(184.073314, 139, 0)), False)
sketch10.addGeometry(Part.LineSegment(V(184.073314, 139, 0), V(222.073314, 139, 0)), False)
sketch10.addGeometry(Part.LineSegment(V(222.073314, 139, 0), V(222.073314, 81, 0)), False)
sketch10.addConstraint(Sketcher.Constraint("Coincident", 0, 2, 1, 1))
sketch10.addConstraint(Sketcher.Constraint("Coincident", 1, 2, 2, 1))
sketch10.addConstraint(Sketcher.Constraint("Coincident", 2, 2, 3, 1))
sketch10.addConstraint(Sketcher.Constraint("Coincident", 3, 2, 0, 1))
sketch10.addConstraint(Sketcher.Constraint("Coincident", 4, 2, 5, 1))
sketch10.addConstraint(Sketcher.Constraint("Coincident", 5, 2, 6, 1))
sketch10.addConstraint(Sketcher.Constraint("Coincident", 6, 2, 7, 1))
sketch10.addConstraint(Sketcher.Constraint("Coincident", 7, 2, 4, 1))
sketch10.addConstraint(Sketcher.Constraint("Vertical", 0))
sketch10.addConstraint(Sketcher.Constraint("Horizontal", 1))
sketch10.addConstraint(Sketcher.Constraint("Vertical", 2))
sketch10.addConstraint(Sketcher.Constraint("Horizontal", 3))
sketch10.addConstraint(Sketcher.Constraint("Horizontal", 4))
sketch10.addConstraint(Sketcher.Constraint("Vertical", 5))
sketch10.addConstraint(Sketcher.Constraint("Horizontal", 6))
sketch10.addConstraint(Sketcher.Constraint("Vertical", 7))
sketch10.addConstraint(Sketcher.Constraint("DistanceX", 1, 1, 1, 2, 40.0))
sketch10.addConstraint(Sketcher.Constraint("DistanceX", 4, 2, 4, 1, 38.0))
sketch10.addConstraint(Sketcher.Constraint("DistanceY", 0, 2, 0, 1, 60.0))
sketch10.addConstraint(Sketcher.Constraint("DistanceY", 5, 1, 5, 2, 58.0))
sketch10.addConstraint(Sketcher.Constraint("DistanceY", -1, 1, 0, 2, 80.0))
sketch10.addConstraint(Sketcher.Constraint("DistanceY", -1, 1, 4, 2, 81.0))
sketch10.addConstraint(Sketcher.Constraint("DistanceX", 0, 2, 4, 2, 1.0))
sketch10.addConstraint(Sketcher.Constraint("DistanceX", -1, 1, 0, 2, 183.073314))
sketch10.setExpression("Constraints[16]", "Params.sketch10_width")
sketch10.setExpression("Constraints[17]", "Params.sketch10_width2")
sketch10.setExpression("Constraints[18]", "Params.sketch10_height")
sketch10.setExpression("Constraints[19]", "Params.sketch10_height2")
pad7 = body6.newObject("PartDesign::Pad", "Pad006")
pad7.Profile = sketch10
pad7.Type = "TwoLengths"
pad7.setExpression("Length", "Params.pad7_length")
pad7.setExpression("Length2", "Params.pad7_length2")
doc.recompute()

fillet7 = body6.newObject("PartDesign::Fillet", "Fillet006")
fillet7.Base = (pad7, edges_at(pad7, [
    (183.073, 80, 0),
    (183.073, 140, 0),
    (223.073, 140, 0),
    (223.073, 80, 0),
]))
fillet7.setExpression("Radius", "Params.fillet7_radius")

# Sketch on YZ plane
sketch11 = body6.newObject("Sketcher::SketchObject", "Sketch010")
sketch11.AttachmentSupport = (doc.getObject("YZ_Plane005"), [""])
sketch11.MapMode = "FlatFace"
sketch11.AttachmentOffset = App.Placement(V(0, 0, 183.073314), App.Rotation())
sketch11.addGeometry(Part.Circle(V(135, -30.15, 0), V(0, 0, 1), 2.5), False)
sketch11.addGeometry(Part.Circle(V(135, 30.15, 0), V(0, 0, 1), 2.5), False)
sketch11.addConstraint(Sketcher.Constraint("Equal", 0, 1))
sketch11.addConstraint(Sketcher.Constraint("Symmetric", 0, 3, 1, 3, -1))
sketch11.addConstraint(Sketcher.Constraint("Diameter", 0, 5.0))
sketch11.addConstraint(Sketcher.Constraint("DistanceX", -1, 1, 0, 3, 135.0))
sketch11.addConstraint(Sketcher.Constraint("DistanceY", 0, 3, 1, 3, 60.3))
sketch11.setExpression("Constraints[2]", "Params.sketch11_diameter")
pocket4 = body6.newObject("PartDesign::Pocket", "Pocket003")
pocket4.Profile = sketch11
pocket4.setExpression("Length", "Params.pocket4_length")
pocket4.Reversed = True

# Sketch on XY plane
sketch12 = body6.newObject("Sketcher::SketchObject", "Sketch011")
sketch12.AttachmentSupport = (doc.getObject("XY_Plane005"), [""])
sketch12.MapMode = "FlatFace"
sketch12.addGeometry(Part.LineSegment(V(238.073314, 80, 0), V(178.073314, 80, 0)), False)
sketch12.addGeometry(Part.LineSegment(V(178.073314, 80, 0), V(178.073314, 40, 0)), False)
sketch12.addGeometry(Part.LineSegment(V(178.073314, 40, 0), V(238.073314, 40, 0)), False)
sketch12.addGeometry(Part.LineSegment(V(238.073314, 40, 0), V(238.073314, 80, 0)), False)
sketch12.addGeometry(Part.LineSegment(V(237.073314, 79, 0), V(237.073314, 41, 0)), False)
sketch12.addGeometry(Part.LineSegment(V(237.073314, 41, 0), V(179.073314, 41, 0)), False)
sketch12.addGeometry(Part.LineSegment(V(179.073314, 41, 0), V(179.073314, 79, 0)), False)
sketch12.addGeometry(Part.LineSegment(V(179.073314, 79, 0), V(237.073314, 79, 0)), False)
sketch12.addConstraint(Sketcher.Constraint("Coincident", 0, 2, 1, 1))
sketch12.addConstraint(Sketcher.Constraint("Coincident", 1, 2, 2, 1))
sketch12.addConstraint(Sketcher.Constraint("Coincident", 2, 2, 3, 1))
sketch12.addConstraint(Sketcher.Constraint("Coincident", 3, 2, 0, 1))
sketch12.addConstraint(Sketcher.Constraint("Coincident", 4, 2, 5, 1))
sketch12.addConstraint(Sketcher.Constraint("Coincident", 5, 2, 6, 1))
sketch12.addConstraint(Sketcher.Constraint("Coincident", 6, 2, 7, 1))
sketch12.addConstraint(Sketcher.Constraint("Coincident", 7, 2, 4, 1))
sketch12.addConstraint(Sketcher.Constraint("Horizontal", 0))
sketch12.addConstraint(Sketcher.Constraint("Vertical", 1))
sketch12.addConstraint(Sketcher.Constraint("Horizontal", 2))
sketch12.addConstraint(Sketcher.Constraint("Vertical", 3))
sketch12.addConstraint(Sketcher.Constraint("Vertical", 4))
sketch12.addConstraint(Sketcher.Constraint("Horizontal", 5))
sketch12.addConstraint(Sketcher.Constraint("Vertical", 6))
sketch12.addConstraint(Sketcher.Constraint("Horizontal", 7))
sketch12.addConstraint(Sketcher.Constraint("DistanceX", 0, 2, 0, 1, 60.0))
sketch12.addConstraint(Sketcher.Constraint("DistanceX", 5, 2, 5, 1, 58.0))
sketch12.addConstraint(Sketcher.Constraint("DistanceY", 1, 2, 1, 1, 40.0))
sketch12.addConstraint(Sketcher.Constraint("DistanceY", 4, 2, 4, 1, 38.0))
sketch12.addConstraint(Sketcher.Constraint("DistanceY", -1, 1, 0, 2, 80.0))
sketch12.addConstraint(Sketcher.Constraint("DistanceY", -1, 1, 4, 2, 41.0))
sketch12.addConstraint(Sketcher.Constraint("DistanceX", 4, 2, 2, 2, 1.0))
sketch12.addConstraint(Sketcher.Constraint("DistanceX", -1, 1, 0, 2, 178.073314))
sketch12.setExpression("Constraints[16]", "Params.sketch12_width")
sketch12.setExpression("Constraints[17]", "Params.sketch12_width2")
sketch12.setExpression("Constraints[18]", "Params.sketch12_height")
sketch12.setExpression("Constraints[19]", "Params.sketch12_height2")
pad8 = body6.newObject("PartDesign::Pad", "Pad007")
pad8.Profile = sketch12
pad8.Type = "TwoLengths"
pad8.setExpression("Length", "Params.pad8_length")
pad8.setExpression("Length2", "Params.pad8_length2")
doc.recompute()

fillet8 = body6.newObject("PartDesign::Fillet", "Fillet007")
fillet8.Base = (pad8, edges_at(pad8, [
    (178.073, 80, 0),
    (238.073, 80, 0),
    (238.073, 40, 0),
    (178.073, 40, 0),
]))
fillet8.setExpression("Radius", "Params.fillet8_radius")

doc.recompute()
